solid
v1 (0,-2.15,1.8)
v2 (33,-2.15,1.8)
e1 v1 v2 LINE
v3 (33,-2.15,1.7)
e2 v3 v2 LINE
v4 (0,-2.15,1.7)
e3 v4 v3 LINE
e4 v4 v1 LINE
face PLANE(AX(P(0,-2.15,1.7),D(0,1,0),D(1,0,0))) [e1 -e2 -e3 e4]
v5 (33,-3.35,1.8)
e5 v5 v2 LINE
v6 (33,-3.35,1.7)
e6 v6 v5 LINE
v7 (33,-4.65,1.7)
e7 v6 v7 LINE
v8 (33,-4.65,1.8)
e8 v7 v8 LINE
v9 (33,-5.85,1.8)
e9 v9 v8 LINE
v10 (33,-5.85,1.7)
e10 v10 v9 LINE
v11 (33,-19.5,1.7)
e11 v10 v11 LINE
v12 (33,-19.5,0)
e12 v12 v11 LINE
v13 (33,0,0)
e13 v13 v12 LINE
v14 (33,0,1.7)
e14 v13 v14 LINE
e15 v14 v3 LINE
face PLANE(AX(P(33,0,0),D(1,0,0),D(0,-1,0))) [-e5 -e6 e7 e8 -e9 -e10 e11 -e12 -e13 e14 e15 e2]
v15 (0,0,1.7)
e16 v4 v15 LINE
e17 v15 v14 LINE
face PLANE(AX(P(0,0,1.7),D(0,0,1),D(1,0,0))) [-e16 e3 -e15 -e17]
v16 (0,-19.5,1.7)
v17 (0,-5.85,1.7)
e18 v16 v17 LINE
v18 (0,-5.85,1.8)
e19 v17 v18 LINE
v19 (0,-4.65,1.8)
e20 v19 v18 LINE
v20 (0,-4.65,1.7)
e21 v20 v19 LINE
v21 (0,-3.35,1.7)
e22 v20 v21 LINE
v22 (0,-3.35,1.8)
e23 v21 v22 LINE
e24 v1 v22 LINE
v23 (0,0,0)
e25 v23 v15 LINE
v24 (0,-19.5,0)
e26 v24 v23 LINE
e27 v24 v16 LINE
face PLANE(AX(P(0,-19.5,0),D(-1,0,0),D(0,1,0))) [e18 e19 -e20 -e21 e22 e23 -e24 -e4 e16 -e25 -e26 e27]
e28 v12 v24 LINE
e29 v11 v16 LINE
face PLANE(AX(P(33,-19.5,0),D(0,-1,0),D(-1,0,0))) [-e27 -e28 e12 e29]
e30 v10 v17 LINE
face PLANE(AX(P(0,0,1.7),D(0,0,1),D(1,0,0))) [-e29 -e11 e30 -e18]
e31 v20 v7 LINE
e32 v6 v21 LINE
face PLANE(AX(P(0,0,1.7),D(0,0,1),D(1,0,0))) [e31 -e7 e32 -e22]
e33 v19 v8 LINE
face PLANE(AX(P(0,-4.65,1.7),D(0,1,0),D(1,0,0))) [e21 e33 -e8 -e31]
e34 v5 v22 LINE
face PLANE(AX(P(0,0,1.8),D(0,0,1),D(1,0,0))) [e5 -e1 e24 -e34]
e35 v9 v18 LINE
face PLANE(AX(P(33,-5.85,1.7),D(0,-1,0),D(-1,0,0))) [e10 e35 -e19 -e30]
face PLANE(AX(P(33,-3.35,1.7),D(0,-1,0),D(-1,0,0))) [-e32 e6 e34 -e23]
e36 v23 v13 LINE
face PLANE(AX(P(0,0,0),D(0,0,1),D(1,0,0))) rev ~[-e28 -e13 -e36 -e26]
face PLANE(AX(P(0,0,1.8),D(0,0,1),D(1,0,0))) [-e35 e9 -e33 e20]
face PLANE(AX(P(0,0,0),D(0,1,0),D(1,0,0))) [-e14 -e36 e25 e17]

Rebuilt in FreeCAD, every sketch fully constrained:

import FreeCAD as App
import Part
import Sketcher

V = App.Vector


def add_polygon(sketch, points):
    """Adds a closed chain of lines whose ends are joined by coincident constraints."""
    first, n = sketch.GeometryCount, len(points)
    for a, b in zip(points, points[1:] + points[:1]):
        sketch.addGeometry(Part.LineSegment(App.Vector(*a, 0), App.Vector(*b, 0)), False)
    for i in range(n):
        sketch.addConstraint(Sketcher.Constraint("Coincident", first + i, 2, first + (i + 1) % n, 1))

doc = App.newDocument("Part")
body = doc.addObject("PartDesign::Body", "Body")

sketch1 = body.newObject("Sketcher::SketchObject", "Sketch")
sketch1.AttachmentSupport = (doc.getObject("XY_Plane"), [""])
sketch1.MapMode = "FlatFace"
add_polygon(sketch1, [(33, 0), (0, 0), (0, -19.5), (33, -19.5)])
sketch1.addConstraint([
    Sketcher.Constraint("Horizontal", 0),
    Sketcher.Constraint("Vertical", 1),
    Sketcher.Constraint("Horizontal", 2),
    Sketcher.Constraint("Vertical", 3),
    Sketcher.Constraint("Coincident", 0, 2, -1, 1),
    Sketcher.Constraint("DistanceX", 0, 2, 0, 1, 33.0),
    Sketcher.Constraint("DistanceY", 1, 2, 1, 1, 19.5),
])
pad1 = body.newObject("PartDesign::Pad", "Pad")
pad1.Profile = sketch1
pad1.Length = 1.7

sketch2 = body.newObject("Sketcher::SketchObject", "Sketch001")
sketch2.AttachmentSupport = (doc.getObject("XY_Plane"), [""])
sketch2.MapMode = "FlatFace"
sketch2.AttachmentOffset = App.Placement(V(0, 0, 1.7), App.Rotation())
add_polygon(sketch2, [(33, -3.35), (33, -2.15), (0, -2.15), (0, -3.35)])
add_polygon(sketch2, [(33, -5.85), (33, -4.65), (0, -4.65), (0, -5.85)])
sketch2.addConstraint([
    Sketcher.Constraint("Vertical", 0),
    Sketcher.Constraint("Horizontal", 1),
    Sketcher.Constraint("Vertical", 2),
    Sketcher.Constraint("Horizontal", 3),
    Sketcher.Constraint("Vertical", 4),
    Sketcher.Constraint("Horizontal", 5),
    Sketcher.Constraint("Vertical", 6),
    Sketcher.Constraint("Horizontal", 7),
    Sketcher.Constraint("PointOnObject", 1, 2, -2),
    Sketcher.Constraint("PointOnObject", 5, 2, -2),
    Sketcher.Constraint("Vertical", 3, 2, 4, 2),
    Sketcher.Constraint("Equal", 2, 4),
    Sketcher.Constraint("DistanceY", 0, 1, 0, 2, 1.2),
    Sketcher.Constraint("DistanceY", 4, 2, 3, 2, 1.3),
    Sketcher.Constraint("DistanceX", 1, 2, 1, 1, 33.0),
    Sketcher.Constraint("DistanceY", 0, 2, -1, 1, 2.15),
])
pad2 = body.newObject("PartDesign::Pad", "Pad001")
pad2.Profile = sketch2
pad2.Length = 0.1

doc.recompute()
